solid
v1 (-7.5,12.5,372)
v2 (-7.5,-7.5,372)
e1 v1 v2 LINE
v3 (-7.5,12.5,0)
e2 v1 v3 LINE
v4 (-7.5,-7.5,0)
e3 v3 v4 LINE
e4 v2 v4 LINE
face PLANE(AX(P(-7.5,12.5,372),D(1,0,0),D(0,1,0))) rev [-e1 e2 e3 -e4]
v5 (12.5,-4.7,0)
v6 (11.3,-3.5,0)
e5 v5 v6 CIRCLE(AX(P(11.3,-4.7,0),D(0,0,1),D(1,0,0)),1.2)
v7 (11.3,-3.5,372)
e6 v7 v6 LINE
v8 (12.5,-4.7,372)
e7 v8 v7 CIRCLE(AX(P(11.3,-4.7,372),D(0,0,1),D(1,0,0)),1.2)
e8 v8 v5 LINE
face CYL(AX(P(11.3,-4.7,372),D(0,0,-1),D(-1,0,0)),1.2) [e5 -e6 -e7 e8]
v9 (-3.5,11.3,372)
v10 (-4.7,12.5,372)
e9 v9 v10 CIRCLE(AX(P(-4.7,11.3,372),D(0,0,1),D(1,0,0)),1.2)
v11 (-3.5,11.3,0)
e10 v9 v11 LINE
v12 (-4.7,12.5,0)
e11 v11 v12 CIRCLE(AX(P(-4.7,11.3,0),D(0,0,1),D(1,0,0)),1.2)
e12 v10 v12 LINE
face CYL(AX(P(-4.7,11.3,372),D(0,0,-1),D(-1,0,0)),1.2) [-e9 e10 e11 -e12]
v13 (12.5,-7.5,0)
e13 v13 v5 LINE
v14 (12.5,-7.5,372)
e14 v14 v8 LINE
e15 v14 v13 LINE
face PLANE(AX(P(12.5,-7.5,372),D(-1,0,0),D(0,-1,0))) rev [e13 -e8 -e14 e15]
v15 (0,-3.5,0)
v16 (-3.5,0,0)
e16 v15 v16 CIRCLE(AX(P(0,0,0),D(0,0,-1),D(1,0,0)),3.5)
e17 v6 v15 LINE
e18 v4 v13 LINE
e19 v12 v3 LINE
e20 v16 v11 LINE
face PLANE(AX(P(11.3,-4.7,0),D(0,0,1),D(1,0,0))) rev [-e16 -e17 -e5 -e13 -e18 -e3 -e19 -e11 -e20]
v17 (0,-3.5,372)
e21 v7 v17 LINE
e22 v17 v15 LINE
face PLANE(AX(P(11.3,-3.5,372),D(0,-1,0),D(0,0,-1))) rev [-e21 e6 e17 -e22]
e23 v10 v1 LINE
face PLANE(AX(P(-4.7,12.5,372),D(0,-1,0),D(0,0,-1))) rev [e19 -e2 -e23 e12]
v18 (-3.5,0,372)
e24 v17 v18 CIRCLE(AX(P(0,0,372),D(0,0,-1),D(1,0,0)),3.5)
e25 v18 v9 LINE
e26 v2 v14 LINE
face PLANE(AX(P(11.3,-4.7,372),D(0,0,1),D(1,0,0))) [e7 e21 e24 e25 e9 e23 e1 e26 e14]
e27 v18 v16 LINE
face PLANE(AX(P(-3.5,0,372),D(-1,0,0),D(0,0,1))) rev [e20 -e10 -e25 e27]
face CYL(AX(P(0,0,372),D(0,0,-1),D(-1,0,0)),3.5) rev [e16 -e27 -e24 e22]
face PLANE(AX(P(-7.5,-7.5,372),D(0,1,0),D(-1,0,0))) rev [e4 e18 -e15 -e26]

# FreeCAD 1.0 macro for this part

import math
import FreeCAD as App
import Part
import Sketcher

V = App.Vector

doc = App.newDocument("Part")
body = doc.addObject("PartDesign::Body", "Body")

# Sketch on XY plane
sketch1 = doc.addObject("Sketcher::SketchObject", "Sketch")
body.addObject(sketch1)
sketch1.AttachmentSupport = (doc.XY_Plane, [""])
sketch1.MapMode = "FlatFace"
sketch1.addGeometry([
    Part.LineSegment(V(-7.5, 12.5, 0), V(-7.5, -7.5, 0)),  # 0
    Part.LineSegment(V(-7.5, -7.5, 0), V(12.5, -7.5, 0)),  # 1
    Part.LineSegment(V(12.5, -7.5, 0), V(12.5, -4.7, 0)),  # 2
    Part.ArcOfCircle(Part.Circle(V(11.3, -4.7, 0), V(0, 0, 1), 1.2), math.radians(0), math.radians(90)),  # 3
    Part.LineSegment(V(11.3, -3.5, 0), V(0, -3.5, 0)),  # 4
    Part.ArcOfCircle(Part.Circle(V(0, 0, 0), V(0, 0, 1), 3.5), math.radians(-180), math.radians(-90)),  # 5
    Part.LineSegment(V(-3.5, 0, 0), V(-3.5, 11.3, 0)),  # 6
    Part.ArcOfCircle(Part.Circle(V(-4.7, 11.3, 0), V(0, 0, 1), 1.2), math.radians(0), math.radians(90)),  # 7
    Part.LineSegment(V(-4.7, 12.5, 0), V(-7.5, 12.5, 0)),  # 8
], False)
sketch1.addConstraint([
    Sketcher.Constraint("Coincident", 0, 2, 1, 1),
    Sketcher.Constraint("Coincident", 1, 2, 2, 1),
    Sketcher.Constraint("Tangent", 2, 2, 3, 1),
    Sketcher.Constraint("Tangent", 3, 2, 4, 1),
    Sketcher.Constraint("Tangent", 4, 2, 5, 2),
    Sketcher.Constraint("Tangent", 5, 1, 6, 1),
    Sketcher.Constraint("Tangent", 6, 2, 7, 1),
    Sketcher.Constraint("Tangent", 7, 2, 8, 1),
    Sketcher.Constraint("Coincident", 8, 2, 0, 1),
    Sketcher.Constraint("Vertical", 0),
    Sketcher.Constraint("Horizontal", 1),
    Sketcher.Constraint("Vertical", 2),
    Sketcher.Constraint("Horizontal", 4),
    Sketcher.Constraint("Vertical", 6),
    Sketcher.Constraint("Horizontal", 8),
    Sketcher.Constraint("Coincident", 5, 3, -1, 1),
    Sketcher.Constraint("Equal", 3, 7),
    Sketcher.Constraint("Equal", 1, 0),
    Sketcher.Constraint("Equal", 8, 2),
    Sketcher.Constraint("Radius", 3, 1.2),
    Sketcher.Constraint("Radius", 5, 3.5),
    Sketcher.Constraint("DistanceX", 1, 1, 1, 2, 20.0),
    Sketcher.Constraint("DistanceX", 4, 2, 4, 1, 11.3),
])
pad1 = doc.addObject("PartDesign::Pad", "Pad")
body.addObject(pad1)
pad1.Profile = sketch1
pad1.Length = 372

doc.recompute()
